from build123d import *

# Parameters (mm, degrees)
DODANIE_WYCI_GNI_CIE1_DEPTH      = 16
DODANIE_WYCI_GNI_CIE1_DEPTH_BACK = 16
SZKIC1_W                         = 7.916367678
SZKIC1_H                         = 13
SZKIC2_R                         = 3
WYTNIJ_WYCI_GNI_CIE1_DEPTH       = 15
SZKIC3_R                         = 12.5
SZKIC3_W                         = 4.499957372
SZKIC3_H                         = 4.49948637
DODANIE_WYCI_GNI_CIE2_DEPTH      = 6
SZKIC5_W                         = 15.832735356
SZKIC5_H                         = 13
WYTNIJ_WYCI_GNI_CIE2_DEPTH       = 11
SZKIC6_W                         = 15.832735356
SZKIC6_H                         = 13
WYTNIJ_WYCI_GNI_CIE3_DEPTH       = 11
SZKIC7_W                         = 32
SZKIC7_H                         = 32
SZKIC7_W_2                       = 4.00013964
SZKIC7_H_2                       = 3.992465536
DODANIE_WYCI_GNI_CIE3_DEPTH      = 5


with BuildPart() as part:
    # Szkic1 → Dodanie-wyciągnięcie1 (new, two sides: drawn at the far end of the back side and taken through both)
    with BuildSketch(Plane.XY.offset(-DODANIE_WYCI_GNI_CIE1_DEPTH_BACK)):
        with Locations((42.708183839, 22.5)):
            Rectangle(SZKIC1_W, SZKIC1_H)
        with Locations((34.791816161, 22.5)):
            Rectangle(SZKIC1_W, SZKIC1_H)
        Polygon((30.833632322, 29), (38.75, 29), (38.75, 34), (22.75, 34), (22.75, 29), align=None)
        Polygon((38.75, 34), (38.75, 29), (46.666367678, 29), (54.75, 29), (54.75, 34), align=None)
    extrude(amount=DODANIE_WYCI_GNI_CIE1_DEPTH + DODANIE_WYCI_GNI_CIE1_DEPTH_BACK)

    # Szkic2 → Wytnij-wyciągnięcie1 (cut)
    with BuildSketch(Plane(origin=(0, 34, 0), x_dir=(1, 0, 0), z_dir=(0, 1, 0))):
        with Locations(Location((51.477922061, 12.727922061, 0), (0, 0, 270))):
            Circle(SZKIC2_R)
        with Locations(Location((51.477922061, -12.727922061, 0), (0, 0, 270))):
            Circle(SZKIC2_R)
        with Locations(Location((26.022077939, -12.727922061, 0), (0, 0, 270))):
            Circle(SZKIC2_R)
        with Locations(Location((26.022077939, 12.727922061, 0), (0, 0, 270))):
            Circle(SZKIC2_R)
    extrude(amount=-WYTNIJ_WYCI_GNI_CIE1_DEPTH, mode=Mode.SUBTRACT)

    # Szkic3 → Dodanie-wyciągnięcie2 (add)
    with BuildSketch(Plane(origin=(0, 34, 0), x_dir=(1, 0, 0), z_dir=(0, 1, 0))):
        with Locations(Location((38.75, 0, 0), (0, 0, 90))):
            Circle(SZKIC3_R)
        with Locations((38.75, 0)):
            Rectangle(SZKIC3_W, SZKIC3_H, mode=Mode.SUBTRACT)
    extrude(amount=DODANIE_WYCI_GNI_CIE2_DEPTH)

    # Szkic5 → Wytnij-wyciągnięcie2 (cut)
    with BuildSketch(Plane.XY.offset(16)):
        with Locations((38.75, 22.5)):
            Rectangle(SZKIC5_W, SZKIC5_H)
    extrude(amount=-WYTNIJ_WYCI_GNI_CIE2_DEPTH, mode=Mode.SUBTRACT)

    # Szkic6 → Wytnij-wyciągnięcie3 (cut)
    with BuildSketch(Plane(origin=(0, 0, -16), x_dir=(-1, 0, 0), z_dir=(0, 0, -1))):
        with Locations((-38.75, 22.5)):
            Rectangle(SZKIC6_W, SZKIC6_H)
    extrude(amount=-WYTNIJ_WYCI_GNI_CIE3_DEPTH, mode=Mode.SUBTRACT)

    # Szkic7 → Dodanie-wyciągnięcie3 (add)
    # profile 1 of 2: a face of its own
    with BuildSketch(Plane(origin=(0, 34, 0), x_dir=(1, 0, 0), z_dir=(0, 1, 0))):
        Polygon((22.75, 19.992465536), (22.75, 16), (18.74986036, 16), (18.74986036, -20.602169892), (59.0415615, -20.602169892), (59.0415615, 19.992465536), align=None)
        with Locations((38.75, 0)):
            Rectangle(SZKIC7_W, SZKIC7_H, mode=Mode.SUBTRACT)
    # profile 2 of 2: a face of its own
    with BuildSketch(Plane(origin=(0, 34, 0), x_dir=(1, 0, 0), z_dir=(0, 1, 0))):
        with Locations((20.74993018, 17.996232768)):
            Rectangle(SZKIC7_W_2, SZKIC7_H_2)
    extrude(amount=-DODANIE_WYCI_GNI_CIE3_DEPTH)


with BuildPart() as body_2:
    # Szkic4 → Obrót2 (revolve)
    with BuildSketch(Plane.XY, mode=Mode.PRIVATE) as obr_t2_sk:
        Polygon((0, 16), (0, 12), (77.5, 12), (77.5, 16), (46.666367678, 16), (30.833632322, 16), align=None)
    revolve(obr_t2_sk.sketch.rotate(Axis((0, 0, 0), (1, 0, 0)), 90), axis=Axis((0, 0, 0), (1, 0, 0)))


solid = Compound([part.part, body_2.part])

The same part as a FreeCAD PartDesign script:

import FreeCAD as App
import Part
import Sketcher


def add_polygon(sketch, points):
    """Adds a closed chain of lines whose ends are joined by coincident constraints."""
    first, n = sketch.GeometryCount, len(points)
    for a, b in zip(points, points[1:] + points[:1]):
        sketch.addGeometry(Part.LineSegment(App.Vector(*a, 0), App.Vector(*b, 0)), False)
    for i in range(n):
        sketch.addConstraint(Sketcher.Constraint("Coincident", first + i, 2, first + (i + 1) % n, 1))

doc = App.newDocument("Part")
params = doc.addObject("Spreadsheet::Sheet", "Params")
for row, (alias, value) in enumerate([
    ("sketch1_width", "32 mm"),
    ("sketch1_height", "13 mm"),
    ("sketch1_height2", "5 mm"),
    ("pad1_length", "16 mm"),
    ("pad1_length2", "16 mm"),
    ("sketch2_diameter", "6 mm"),
    ("pocket1_length", "15 mm"),
    ("sketch3_diameter", "25 mm"),
    ("pad2_length", "6 mm"),
    ("sketch4_height", "13 mm"),
    ("pocket2_length", "11 mm"),
    ("sketch5_height", "13 mm"),
    ("pocket3_length", "11 mm"),
    ("sketch6_width", "32 mm"),
    ("pad3_length", "5 mm"),
    ("sketch7_height", "4 mm"),
    ("sketch7_width", "77.5 mm"),
    ("revolution_angle", "360 deg"),
], start=1):
    params.set(f"A{row}", alias)
    params.set(f"B{row}", "=" + value)
    params.setAlias(f"B{row}", alias)

body = doc.addObject("PartDesign::Body", "Body")

# Sketch on XY plane
sketch1 = body.newObject("Sketcher::SketchObject", "Sketch")
sketch1.AttachmentSupport = (doc.getObject("XY_Plane"), [""])
sketch1.MapMode = "FlatFace"
add_polygon(sketch1, [(47, 16), (47, 29), (55, 29), (55, 34), (23, 34), (23, 29), (31, 29), (31, 16)])  # lines 0-7
sketch1.addConstraint(Sketcher.Constraint("Vertical", 0))
sketch1.addConstraint(Sketcher.Constraint("Horizontal", 1))
sketch1.addConstraint(Sketcher.Constraint("Vertical", 2))
sketch1.addConstraint(Sketcher.Constraint("Horizontal", 3))
sketch1.addConstraint(Sketcher.Constraint("Vertical", 4))
sketch1.addConstraint(Sketcher.Constraint("Horizontal", 5))
sketch1.addConstraint(Sketcher.Constraint("Vertical", 6))
sketch1.addConstraint(Sketcher.Constraint("Horizontal", 7))
sketch1.addConstraint(Sketcher.Constraint("Horizontal", 1, 2, 4, 2))
sketch1.addConstraint(Sketcher.Constraint("Equal", 1, 5))
sketch1.addConstraint(Sketcher.Constraint("DistanceX", 3, 2, 3, 1, 32.0))
sketch1.addConstraint(Sketcher.Constraint("DistanceY", 0, 1, 0, 2, 13.0))
sketch1.addConstraint(Sketcher.Constraint("DistanceY", 2, 1, 2, 2, 5.0))
sketch1.addConstraint(Sketcher.Constraint("DistanceY", -1, 1, 0, 2, 29.0))
sketch1.addConstraint(Sketcher.Constraint("DistanceX", -1, 1, 1, 2, 54.75))
sketch1.addConstraint(Sketcher.Constraint("DistanceX", 1, 1, 1, 2, 8.083632))
sketch1.setExpression("Constraints[18]", "Params.sketch1_width")
sketch1.setExpression("Constraints[19]", "Params.sketch1_height")
sketch1.setExpression("Constraints[20]", "Params.sketch1_height2")
pad1 = body.newObject("PartDesign::Pad", "Pad")
pad1.Profile = sketch1
pad1.Type = "TwoLengths"
pad1.setExpression("Length", "Params.pad1_length")
pad1.setExpression("Length2", "Params.pad1_length2")

# Sketch on XZ plane
sketch2 = body.newObject("Sketcher::SketchObject", "Sketch001")
sketch2.AttachmentSupport = (doc.getObject("XZ_Plane"), [""])
sketch2.MapMode = "FlatFace"
sketch2.AttachmentOffset = App.Placement(App.Vector(0, 0, -34), App.Rotation())
sketch2.addGeometry(Part.Circle(App.Vector(51.5, -12.7, 0), App.Vector(0, 0, 1), 3), False)
sketch2.addGeometry(Part.Circle(App.Vector(51.5, 12.7, 0), App.Vector(0, 0, 1), 3), False)
sketch2.addGeometry(Part.Circle(App.Vector(26, 12.7, 0), App.Vector(0, 0, 1), 3), False)
sketch2.addGeometry(Part.Circle(App.Vector(26, -12.7, 0), App.Vector(0, 0, 1), 3), False)
sketch2.addConstraint(Sketcher.Constraint("Equal", 0, 1))
sketch2.addConstraint(Sketcher.Constraint("Equal", 1, 2))
sketch2.addConstraint(Sketcher.Constraint("Equal", 2, 3))
sketch2.addConstraint(Sketcher.Constraint("Symmetric", 0, 3, 1, 3, -1))
sketch2.addConstraint(Sketcher.Constraint("Symmetric", 2, 3, 3, 3, -1))
sketch2.addConstraint(Sketcher.Constraint("Horizontal", 1, 3, 2, 3))
sketch2.addConstraint(Sketcher.Constraint("Diameter", 0, 6.0))
sketch2.addConstraint(Sketcher.Constraint("DistanceX", -1, 1, 0, 3, 51.477922))
sketch2.addConstraint(Sketcher.Constraint("DistanceY", 0, 3, -1, 1, 12.727922))
sketch2.addConstraint(Sketcher.Constraint("DistanceX", -1, 1, 2, 3, 26.022078))
sketch2.setExpression("Constraints[6]", "Params.sketch2_diameter")
pocket1 = body.newObject("PartDesign::Pocket", "Pocket")
pocket1.Profile = sketch2
pocket1.setExpression("Length", "Params.pocket1_length")
pocket1.Reversed = True

# Sketch on XZ plane
sketch3 = body.newObject("Sketcher::SketchObject", "Sketch002")
sketch3.AttachmentSupport = (doc.getObject("XZ_Plane"), [""])
sketch3.MapMode = "FlatFace"
sketch3.AttachmentOffset = App.Placement(App.Vector(0, 0, -34), App.Rotation())
sketch3.addGeometry(Part.Circle(App.Vector(38.8, 0, 0), App.Vector(0, 0, 1), 12.5), False)  # 0
add_polygon(sketch3, [(41, 2.2), (36.5, 2.2), (36.5, -2.2), (41, -2.2)])  # lines 1-4
sketch3.addConstraint(Sketcher.Constraint("Horizontal", 1))
sketch3.addConstraint(Sketcher.Constraint("Vertical", 2))
sketch3.addConstraint(Sketcher.Constraint("Horizontal", 3))
sketch3.addConstraint(Sketcher.Constraint("Vertical", 4))
sketch3.addConstraint(Sketcher.Constraint("PointOnObject", 0, 3, -1))
sketch3.addConstraint(Sketcher.Constraint("Diameter", 0, 25.0))
sketch3.addConstraint(Sketcher.Constraint("DistanceX", -1, 1, 0, 3, 38.75))
sketch3.addConstraint(Sketcher.Constraint("DistanceX", 1, 2, 1, 1, 4.499957))
sketch3.addConstraint(Sketcher.Constraint("DistanceY", 2, 2, 2, 1, 4.499486))
sketch3.addConstraint(Sketcher.Constraint("DistanceX", -1, 1, 1, 2, 36.500021))
sketch3.addConstraint(Sketcher.Constraint("DistanceY", -1, 1, 1, 2, 2.249743))
sketch3.setExpression("Constraints[9]", "Params.sketch3_diameter")
pad2 = body.newObject("PartDesign::Pad", "Pad001")
pad2.Profile = sketch3
pad2.setExpression("Length", "Params.pad2_length")
pad2.Reversed = True

# Sketch on XY plane
sketch4 = body.newObject("Sketcher::SketchObject", "Sketch003")
sketch4.AttachmentSupport = (doc.getObject("XY_Plane"), [""])
sketch4.MapMode = "FlatFace"
sketch4.AttachmentOffset = App.Placement(App.Vector(0, 0, 16), App.Rotation())
add_polygon(sketch4, [(31, 29), (31, 16), (47, 16), (47, 29)])  # lines 0-3
sketch4.addConstraint(Sketcher.Constraint("Vertical", 0))
sketch4.addConstraint(Sketcher.Constraint("Horizontal", 1))
sketch4.addConstraint(Sketcher.Constraint("Vertical", 2))
sketch4.addConstraint(Sketcher.Constraint("Horizontal", 3))
sketch4.addConstraint(Sketcher.Constraint("DistanceY", 0, 2, 0, 1, 13.0))
sketch4.addConstraint(Sketcher.Constraint("DistanceY", -1, 1, 0, 2, 16.0))
sketch4.addConstraint(Sketcher.Constraint("DistanceX", 1, 1, 1, 2, 15.832735))
sketch4.addConstraint(Sketcher.Constraint("DistanceX", -1, 1, 0, 2, 30.833632))
sketch4.setExpression("Constraints[8]", "Params.sketch4_height")
pocket2 = body.newObject("PartDesign::Pocket", "Pocket001")
pocket2.Profile = sketch4
pocket2.setExpression("Length", "Params.pocket2_length")

# Sketch on XY plane
sketch5 = body.newObject("Sketcher::SketchObject", "Sketch004")
sketch5.AttachmentSupport = (doc.getObject("XY_Plane"), [""])
sketch5.MapMode = "FlatFace"
sketch5.AttachmentOffset = App.Placement(App.Vector(0, 0, -16), App.Rotation())
add_polygon(sketch5, [(47, 29), (47, 16), (31, 16), (31, 29)])  # lines 0-3
sketch5.addConstraint(Sketcher.Constraint("Vertical", 0))
sketch5.addConstraint(Sketcher.Constraint("Horizontal", 1))
sketch5.addConstraint(Sketcher.Constraint("Vertical", 2))
sketch5.addConstraint(Sketcher.Constraint("Horizontal", 3))
sketch5.addConstraint(Sketcher.Constraint("DistanceY", 0, 2, 0, 1, 13.0))
sketch5.addConstraint(Sketcher.Constraint("DistanceY", -1, 1, 0, 2, 16.0))
sketch5.addConstraint(Sketcher.Constraint("DistanceX", 1, 2, 1, 1, 15.832735))
sketch5.addConstraint(Sketcher.Constraint("DistanceX", -1, 1, 0, 2, 46.666368))
sketch5.setExpression("Constraints[8]", "Params.sketch5_height")
pocket3 = body.newObject("PartDesign::Pocket", "Pocket002")
pocket3.Profile = sketch5
pocket3.setExpression("Length", "Params.pocket3_length")
pocket3.Reversed = True

# Sketch on XZ plane
sketch6 = body.newObject("Sketcher::SketchObject", "Sketch005")
sketch6.AttachmentSupport = (doc.getObject("XZ_Plane"), [""])
sketch6.MapMode = "FlatFace"
sketch6.AttachmentOffset = App.Placement(App.Vector(0, 0, -34), App.Rotation())
add_polygon(sketch6, [(59, 21), (59, -20), (19, -20), (19, 21)])  # lines 0-3
add_polygon(sketch6, [(23, 16), (23, -16), (55, -16), (55, 16)])  # lines 4-7
sketch6.addConstraint(Sketcher.Constraint("Vertical", 0))
sketch6.addConstraint(Sketcher.Constraint("Horizontal", 1))
sketch6.addConstraint(Sketcher.Constraint("Vertical", 2))
sketch6.addConstraint(Sketcher.Constraint("Horizontal", 3))
sketch6.addConstraint(Sketcher.Constraint("Vertical", 4))
sketch6.addConstraint(Sketcher.Constraint("Horizontal", 5))
sketch6.addConstraint(Sketcher.Constraint("Vertical", 6))
sketch6.addConstraint(Sketcher.Constraint("Horizontal", 7))
sketch6.addConstraint(Sketcher.Constraint("Equal", 7, 4))
sketch6.addConstraint(Sketcher.Constraint("DistanceX", 5, 1, 5, 2, 32.0))
sketch6.addConstraint(Sketcher.Constraint("DistanceY", 4, 2, -1, 1, 16.0))
sketch6.addConstraint(Sketcher.Constraint("DistanceX", -1, 1, 4, 2, 22.75))
sketch6.addConstraint(Sketcher.Constraint("DistanceX", 1, 2, 1, 1, 40.291701))
sketch6.addConstraint(Sketcher.Constraint("DistanceY", 0, 2, 0, 1, 40.594635))
sketch6.addConstraint(Sketcher.Constraint("DistanceX", -1, 1, 0, 2, 59.041562))
sketch6.addConstraint(Sketcher.Constraint("DistanceY", -1, 1, 2, 2, 20.60217))
sketch6.setExpression("Constraints[17]", "Params.sketch6_width")
pad3 = body.newObject("PartDesign::Pad", "Pad002")
pad3.Profile = sketch6
pad3.setExpression("Length", "Params.pad3_length")
body2 = doc.addObject("PartDesign::Body", "Body001")

# Sketch on XY plane
sketch7 = body2.newObject("Sketcher::SketchObject", "Sketch006")
sketch7.AttachmentSupport = (doc.getObject("XY_Plane001"), [""])
sketch7.MapMode = "FlatFace"
add_polygon(sketch7, [(0, 16), (0, 12), (77.5, 12), (77.5, 16)])  # lines 0-3
sketch7.addConstraint(Sketcher.Constraint("Vertical", 0))
sketch7.addConstraint(Sketcher.Constraint("Horizontal", 1))
sketch7.addConstraint(Sketcher.Constraint("Vertical", 2))
sketch7.addConstraint(Sketcher.Constraint("Horizontal", 3))
sketch7.addConstraint(Sketcher.Constraint("PointOnObject", 0, 2, -2))
sketch7.addConstraint(Sketcher.Constraint("DistanceY", 0, 2, 0, 1, 4.0))
sketch7.addConstraint(Sketcher.Constraint("DistanceX", 1, 1, 1, 2, 77.5))
sketch7.addConstraint(Sketcher.Constraint("DistanceY", -1, 1, 0, 2, 12.0))
sketch7.setExpression("Constraints[9]", "Params.sketch7_height")
sketch7.setExpression("Constraints[10]", "Params.sketch7_width")
revolution = body2.newObject("PartDesign::Revolution", "Revolution")
revolution.Profile = sketch7
revolution.ReferenceAxis = (sketch7, ["H_Axis"])
revolution.setExpression("Angle", "Params.revolution_angle")

doc.recompute()
